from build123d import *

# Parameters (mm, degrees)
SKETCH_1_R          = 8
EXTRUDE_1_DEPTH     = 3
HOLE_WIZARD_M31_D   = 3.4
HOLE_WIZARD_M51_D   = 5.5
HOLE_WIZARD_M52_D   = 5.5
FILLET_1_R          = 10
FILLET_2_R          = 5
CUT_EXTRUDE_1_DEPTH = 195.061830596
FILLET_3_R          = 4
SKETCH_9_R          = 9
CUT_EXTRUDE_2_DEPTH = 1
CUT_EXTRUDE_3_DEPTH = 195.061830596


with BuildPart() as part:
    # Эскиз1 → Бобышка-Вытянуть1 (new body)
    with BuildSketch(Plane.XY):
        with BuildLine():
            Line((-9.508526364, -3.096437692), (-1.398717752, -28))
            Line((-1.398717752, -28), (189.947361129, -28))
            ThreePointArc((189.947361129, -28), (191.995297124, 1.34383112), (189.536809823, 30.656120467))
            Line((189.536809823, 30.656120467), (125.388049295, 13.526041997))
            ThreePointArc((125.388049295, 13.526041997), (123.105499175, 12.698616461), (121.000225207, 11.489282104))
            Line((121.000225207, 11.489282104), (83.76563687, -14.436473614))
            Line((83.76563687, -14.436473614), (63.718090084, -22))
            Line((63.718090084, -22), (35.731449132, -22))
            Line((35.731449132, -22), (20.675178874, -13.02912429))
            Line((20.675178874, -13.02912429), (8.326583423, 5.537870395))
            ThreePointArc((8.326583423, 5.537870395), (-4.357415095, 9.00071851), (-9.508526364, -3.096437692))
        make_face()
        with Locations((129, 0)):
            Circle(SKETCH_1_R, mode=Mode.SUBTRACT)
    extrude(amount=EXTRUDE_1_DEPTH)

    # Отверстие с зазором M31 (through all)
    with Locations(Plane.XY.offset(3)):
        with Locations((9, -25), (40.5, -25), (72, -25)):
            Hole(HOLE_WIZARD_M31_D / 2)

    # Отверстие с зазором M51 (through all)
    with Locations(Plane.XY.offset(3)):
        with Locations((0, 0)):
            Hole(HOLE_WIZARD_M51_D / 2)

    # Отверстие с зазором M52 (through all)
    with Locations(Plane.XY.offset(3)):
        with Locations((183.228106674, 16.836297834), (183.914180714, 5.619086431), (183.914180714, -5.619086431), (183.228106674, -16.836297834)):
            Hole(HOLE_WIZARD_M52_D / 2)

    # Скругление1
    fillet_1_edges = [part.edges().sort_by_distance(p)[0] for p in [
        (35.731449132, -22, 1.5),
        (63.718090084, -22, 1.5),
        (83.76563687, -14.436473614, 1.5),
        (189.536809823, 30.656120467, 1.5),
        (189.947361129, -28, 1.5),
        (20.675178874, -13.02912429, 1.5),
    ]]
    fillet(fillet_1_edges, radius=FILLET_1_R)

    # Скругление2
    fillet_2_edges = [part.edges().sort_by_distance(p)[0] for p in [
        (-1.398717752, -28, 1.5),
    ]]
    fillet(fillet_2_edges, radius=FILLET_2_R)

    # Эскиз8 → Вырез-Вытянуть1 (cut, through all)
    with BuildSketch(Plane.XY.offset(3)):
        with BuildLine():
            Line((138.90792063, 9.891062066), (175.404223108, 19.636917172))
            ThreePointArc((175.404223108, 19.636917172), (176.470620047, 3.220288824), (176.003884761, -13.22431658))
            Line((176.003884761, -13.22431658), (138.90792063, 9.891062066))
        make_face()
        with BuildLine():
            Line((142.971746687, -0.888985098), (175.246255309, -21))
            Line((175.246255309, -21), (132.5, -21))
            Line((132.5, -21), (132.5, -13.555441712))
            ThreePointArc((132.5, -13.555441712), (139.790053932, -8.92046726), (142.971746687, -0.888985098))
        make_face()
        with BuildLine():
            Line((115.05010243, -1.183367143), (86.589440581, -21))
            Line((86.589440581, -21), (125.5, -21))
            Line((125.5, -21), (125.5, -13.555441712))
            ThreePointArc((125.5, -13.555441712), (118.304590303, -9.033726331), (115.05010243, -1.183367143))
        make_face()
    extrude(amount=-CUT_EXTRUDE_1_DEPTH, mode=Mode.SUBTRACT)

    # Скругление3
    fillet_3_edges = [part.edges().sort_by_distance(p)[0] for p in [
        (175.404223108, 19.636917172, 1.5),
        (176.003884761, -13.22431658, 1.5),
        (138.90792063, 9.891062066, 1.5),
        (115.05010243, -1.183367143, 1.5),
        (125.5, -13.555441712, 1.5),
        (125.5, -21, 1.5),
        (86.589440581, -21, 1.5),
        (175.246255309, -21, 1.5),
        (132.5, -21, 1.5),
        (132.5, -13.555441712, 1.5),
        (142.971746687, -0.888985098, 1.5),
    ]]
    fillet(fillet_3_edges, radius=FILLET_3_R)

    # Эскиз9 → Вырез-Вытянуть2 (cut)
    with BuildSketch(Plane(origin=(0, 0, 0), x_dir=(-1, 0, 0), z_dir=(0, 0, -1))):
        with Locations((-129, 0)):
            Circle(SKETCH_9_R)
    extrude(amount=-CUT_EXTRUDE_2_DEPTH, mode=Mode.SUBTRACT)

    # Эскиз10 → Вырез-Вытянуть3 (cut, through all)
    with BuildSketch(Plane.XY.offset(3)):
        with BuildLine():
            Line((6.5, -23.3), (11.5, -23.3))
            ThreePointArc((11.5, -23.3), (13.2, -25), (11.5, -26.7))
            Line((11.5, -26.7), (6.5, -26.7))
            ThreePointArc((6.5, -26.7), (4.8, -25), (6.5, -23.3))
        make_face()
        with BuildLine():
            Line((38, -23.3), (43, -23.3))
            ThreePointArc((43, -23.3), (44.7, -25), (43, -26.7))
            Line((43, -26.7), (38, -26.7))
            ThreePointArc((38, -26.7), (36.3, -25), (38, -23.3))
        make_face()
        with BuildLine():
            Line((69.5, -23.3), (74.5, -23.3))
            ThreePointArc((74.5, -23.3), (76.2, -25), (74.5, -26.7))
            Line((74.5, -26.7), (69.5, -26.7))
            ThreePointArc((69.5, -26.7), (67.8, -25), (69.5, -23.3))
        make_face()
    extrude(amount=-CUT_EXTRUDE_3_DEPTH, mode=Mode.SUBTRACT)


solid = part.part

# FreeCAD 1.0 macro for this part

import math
import FreeCAD as App
import Part
import Sketcher

V = App.Vector


def edges_at(feature, points):
    """Names of the edges that pass closest to the given points."""
    edges = feature.Shape.Edges
    near = lambda p: min(range(len(edges)), key=lambda i: edges[i].distToShape(Part.Vertex(*p))[0])
    return sorted({f"Edge{near(p) + 1}" for p in points})

doc = App.newDocument("Part")
params = doc.addObject("Spreadsheet::Sheet", "Params")
for row, (alias, value) in enumerate([
    ("sketch1_diameter", "16 mm"),
    ("sketch1_radius", "192 mm"),
    ("sketch1_radius2", "14 mm"),
    ("sketch1_radius3", "10 mm"),
    ("pad1_length", "3 mm"),
    ("sketch2_diameter", "3.4 mm"),
    ("hole_diameter", "3.4 mm"),
    ("sketch3_diameter", "5.5 mm"),
    ("hole2_diameter", "5.5 mm"),
    ("sketch4_diameter", "5.5 mm"),
    ("hole3_diameter", "5.5 mm"),
    ("fillet_radius", "10 mm"),
    ("fillet2_radius", "5 mm"),
    ("sketch5_radius", "14 mm"),
    ("sketch5_radius2", "176.5 mm"),
    ("fillet3_radius", "4 mm"),
    ("sketch6_diameter", "18 mm"),
    ("pocket2_length", "1 mm"),
    ("sketch7_radius", "1.7 mm"),
    ("sketch7_width", "5 mm"),
], start=1):
    params.set(f"A{row}", alias)
    params.set(f"B{row}", "=" + value)
    params.setAlias(f"B{row}", alias)

body = doc.addObject("PartDesign::Body", "Body")

# Sketch on XY plane
sketch1 = body.newObject("Sketcher::SketchObject", "Sketch")
sketch1.AttachmentSupport = (doc.getObject("XY_Plane"), [""])
sketch1.MapMode = "FlatFace"
sketch1.addGeometry([
    Part.LineSegment(V(-9.508526, -3.096438, 0), V(-1.398718, -28, 0)),  # 0
    Part.LineSegment(V(-1.398718, -28, 0), V(189.947361, -28, 0)),  # 1
    Part.ArcOfCircle(Part.Circle(V(0, 0, 0), V(0, 0, 1), 192), math.radians(-8.385539), math.radians(9.187585)),  # 2
    Part.LineSegment(V(189.53681, 30.65612, 0), V(125.388049, 13.526042, 0)),  # 3
    Part.ArcOfCircle(Part.Circle(V(129, 0, 0), V(0, 0, 1), 14), math.radians(104.951213), math.radians(124.848781)),  # 4
    Part.LineSegment(V(121.000225, 11.489282, 0), V(83.765637, -14.436474, 0)),  # 5
    Part.LineSegment(V(83.765637, -14.436474, 0), V(63.71809, -22, 0)),  # 6
    Part.LineSegment(V(63.71809, -22, 0), V(35.731449, -22, 0)),  # 7
    Part.LineSegment(V(35.731449, -22, 0), V(20.675179, -13.029124, 0)),  # 8
    Part.LineSegment(V(20.675179, -13.029124, 0), V(8.326583, 5.53787, 0)),  # 9
    Part.ArcOfCircle(Part.Circle(V(0, 0, 0), V(0, 0, 1), 10), math.radians(33.62721), math.radians(198.037764)),  # 10
    Part.Circle(V(129, 0, 0), V(0, 0, 1), 8),  # 11
], False)
sketch1.addConstraint([
    Sketcher.Constraint("Coincident", 0, 2, 1, 1),
    Sketcher.Constraint("Coincident", 1, 2, 2, 1),
    Sketcher.Constraint("Coincident", 2, 2, 3, 1),
    Sketcher.Constraint("Tangent", 3, 2, 4, 1),
    Sketcher.Constraint("Tangent", 4, 2, 5, 1),
    Sketcher.Constraint("Coincident", 5, 2, 6, 1),
    Sketcher.Constraint("Coincident", 6, 2, 7, 1),
    Sketcher.Constraint("Coincident", 7, 2, 8, 1),
    Sketcher.Constraint("Coincident", 8, 2, 9, 1),
    Sketcher.Constraint("Tangent", 9, 2, 10, 1),
    Sketcher.Constraint("Tangent", 10, 2, 0, 1),
    Sketcher.Constraint("Horizontal", 1),
    Sketcher.Constraint("Horizontal", 7),
    Sketcher.Constraint("Coincident", 2, 3, -1, 1),
    Sketcher.Constraint("Coincident", 10, 3, -1, 1),
    Sketcher.Constraint("Coincident", 11, 3, 4, 3),
    Sketcher.Constraint("PointOnObject", 4, 3, -1),
    Sketcher.Constraint("Diameter", 11, 16.0),
    Sketcher.Constraint("Radius", 2, 192.0),
    Sketcher.Constraint("Radius", 4, 14.0),
    Sketcher.Constraint("Radius", 10, 10.0),
    Sketcher.Constraint("DistanceX", -1, 1, 4, 3, 129.0),
    Sketcher.Constraint("DistanceY", 0, 2, -1, 1, 28.0),
    Sketcher.Constraint("DistanceY", 6, 2, -1, 1, 22.0),
    Sketcher.Constraint("DistanceX", 1, 1, 1, 2, 191.346079),
    Sketcher.Constraint("DistanceX", 7, 2, 7, 1, 27.986641),
    Sketcher.Constraint("DistanceX", 0, 2, 9, 2, 9.725301),
    Sketcher.Constraint("Distance", 3, 66.396559),
    Sketcher.Constraint("Distance", 5, 45.37135),
    Sketcher.Constraint("DistanceX", -1, 1, 6, 2, 63.71809),
    Sketcher.Constraint("DistanceX", -1, 1, 8, 2, 20.675179),
    Sketcher.Constraint("DistanceY", 4, 2, 3, 2, 2.03676),
])
sketch1.setExpression("Constraints[17]", "Params.sketch1_diameter")
sketch1.setExpression("Constraints[18]", "Params.sketch1_radius")
sketch1.setExpression("Constraints[19]", "Params.sketch1_radius2")
sketch1.setExpression("Constraints[20]", "Params.sketch1_radius3")
pad1 = body.newObject("PartDesign::Pad", "Pad")
pad1.Profile = sketch1
pad1.setExpression("Length", "Params.pad1_length")

# Sketch on XY plane
sketch2 = body.newObject("Sketcher::SketchObject", "Sketch001")
sketch2.AttachmentSupport = (doc.getObject("XY_Plane"), [""])
sketch2.MapMode = "FlatFace"
sketch2.AttachmentOffset = App.Placement(V(0, 0, 3), App.Rotation())
sketch2.addGeometry([
    Part.Circle(V(9, -25, 0), V(0, 0, 1), 1.7),
    Part.Circle(V(40.5, -25, 0), V(0, 0, 1), 1.7),
    Part.Circle(V(72, -25, 0), V(0, 0, 1), 1.7),
], False)
sketch2.addConstraint([
    Sketcher.Constraint("Equal", 0, 1),
    Sketcher.Constraint("Equal", 1, 2),
    Sketcher.Constraint("Horizontal", 0, 3, 1, 3),
    Sketcher.Constraint("Horizontal", 1, 3, 2, 3),
    Sketcher.Constraint("Diameter", 0, 3.4),
    Sketcher.Constraint("DistanceX", -1, 1, 0, 3, 9.0),
    Sketcher.Constraint("DistanceY", 0, 3, -1, 1, 25.0),
    Sketcher.Constraint("DistanceX", -1, 1, 2, 3, 72.0),
    Sketcher.Constraint("DistanceX", -1, 1, 1, 3, 40.5),
])
sketch2.setExpression("Constraints[4]", "Params.sketch2_diameter")
doc.recompute()
hole = body.newObject("PartDesign::Hole", "Hole")
hole.Profile = sketch2
hole.ThreadType = "None"
hole.setExpression("Diameter", "Params.hole_diameter")
hole.DepthType = "ThroughAll"

# Sketch on XY plane
sketch3 = body.newObject("Sketcher::SketchObject", "Sketch002")
sketch3.AttachmentSupport = (doc.getObject("XY_Plane"), [""])
sketch3.MapMode = "FlatFace"
sketch3.AttachmentOffset = App.Placement(V(0, 0, 3), App.Rotation())
sketch3.addGeometry(Part.Circle(V(0, 0, 0), V(0, 0, 1), 2.75), False)
sketch3.addConstraint([
    Sketcher.Constraint("Coincident", 0, 3, -1, 1),
    Sketcher.Constraint("Diameter", 0, 5.5),
])
sketch3.setExpression("Constraints[1]", "Params.sketch3_diameter")
doc.recompute()
hole2 = body.newObject("PartDesign::Hole", "Hole001")
hole2.Profile = sketch3
hole2.ThreadType = "None"
hole2.setExpression("Diameter", "Params.hole2_diameter")
hole2.DepthType = "ThroughAll"

# Sketch on XY plane
sketch4 = body.newObject("Sketcher::SketchObject", "Sketch003")
sketch4.AttachmentSupport = (doc.getObject("XY_Plane"), [""])
sketch4.MapMode = "FlatFace"
sketch4.AttachmentOffset = App.Placement(V(0, 0, 3), App.Rotation())
sketch4.addGeometry([
    Part.Circle(V(183.228107, 16.836298, 0), V(0, 0, 1), 2.75),
    Part.Circle(V(183.914181, 5.619086, 0), V(0, 0, 1), 2.75),
    Part.Circle(V(183.914181, -5.619086, 0), V(0, 0, 1), 2.75),
    Part.Circle(V(183.228107, -16.836298, 0), V(0, 0, 1), 2.75),
], False)
sketch4.addConstraint([
    Sketcher.Constraint("Equal", 0, 1),
    Sketcher.Constraint("Equal", 1, 2),
    Sketcher.Constraint("Equal", 2, 3),
    Sketcher.Constraint("Symmetric", 1, 3, 2, 3, -1),
    Sketcher.Constraint("Symmetric", 0, 3, 3, 3, -1),
    Sketcher.Constraint("Diameter", 0, 5.5),
    Sketcher.Constraint("DistanceX", -1, 1, 1, 3, 183.914181),
    Sketcher.Constraint("DistanceY", 1, 3, 0, 3, 11.217211),
    Sketcher.Constraint("DistanceX", -1, 1, 0, 3, 183.228107),
    Sketcher.Constraint("DistanceY", -1, 1, 0, 3, 16.836298),
])
sketch4.setExpression("Constraints[5]", "Params.sketch4_diameter")
doc.recompute()
hole3 = body.newObject("PartDesign::Hole", "Hole002")
hole3.Profile = sketch4
hole3.ThreadType = "None"
hole3.setExpression("Diameter", "Params.hole3_diameter")
hole3.DepthType = "ThroughAll"
doc.recompute()

fillet = body.newObject("PartDesign::Fillet", "Fillet")
fillet.Base = (hole3, edges_at(hole3, [
    (35.731, -22, 1.5),
    (63.718, -22, 1.5),
    (83.766, -14.436, 1.5),
    (189.537, 30.656, 1.5),
    (189.947, -28, 1.5),
    (20.675, -13.029, 1.5),
]))
fillet.setExpression("Radius", "Params.fillet_radius")
doc.recompute()

fillet2 = body.newObject("PartDesign::Fillet", "Fillet001")
fillet2.Base = (fillet, edges_at(fillet, [(-1.399, -28, 1.5)]))
fillet2.setExpression("Radius", "Params.fillet2_radius")

# Sketch on XY plane
sketch5 = body.newObject("Sketcher::SketchObject", "Sketch004")
sketch5.AttachmentSupport = (doc.getObject("XY_Plane"), [""])
sketch5.MapMode = "FlatFace"
sketch5.AttachmentOffset = App.Placement(V(0, 0, 3), App.Rotation())
sketch5.addGeometry([
    Part.LineSegment(V(175.404223, 19.636917, 0), V(138.907921, 9.891062, 0)),  # 0
    Part.LineSegment(V(138.907921, 9.891062, 0), V(176.003885, -13.224317, 0)),  # 1
    Part.ArcOfCircle(Part.Circle(V(0, 0, 0), V(0, 0, 1), 176.5), math.radians(-4.296931), math.radians(6.3878)),  # 2
    Part.LineSegment(V(175.246255, -21, 0), V(142.971747, -0.888985, 0)),  # 3
    Part.ArcOfCircle(Part.Circle(V(129, 0, 0), V(0, 0, 1), 14), math.radians(-75.522488), math.radians(-3.64067)),  # 4
    Part.LineSegment(V(132.5, -13.555442, 0), V(132.5, -21, 0)),  # 5
    Part.LineSegment(V(132.5, -21, 0), V(175.246255, -21, 0)),  # 6
    Part.LineSegment(V(115.050102, -1.183367, 0), V(86.589441, -21, 0)),  # 7
    Part.LineSegment(V(86.589441, -21, 0), V(125.5, -21, 0)),  # 8
    Part.LineSegment(V(125.5, -21, 0), V(125.5, -13.555442, 0)),  # 9
    Part.ArcOfCircle(Part.Circle(V(129, 0, 0), V(0, 0, 1), 14), math.radians(-175.151219), math.radians(-104.477512)),  # 10
], False)
sketch5.addConstraint([
    Sketcher.Constraint("Coincident", 0, 2, 1, 1),
    Sketcher.Constraint("Coincident", 1, 2, 2, 1),
    Sketcher.Constraint("Coincident", 2, 2, 0, 1),
    Sketcher.Constraint("Coincident", 3, 2, 4, 2),
    Sketcher.Constraint("Coincident", 4, 1, 5, 1),
    Sketcher.Constraint("Coincident", 5, 2, 6, 1),
    Sketcher.Constraint("Coincident", 6, 2, 3, 1),
    Sketcher.Constraint("Coincident", 7, 2, 8, 1),
    Sketcher.Constraint("Coincident", 8, 2, 9, 1),
    Sketcher.Constraint("Coincident", 9, 2, 10, 2),
    Sketcher.Constraint("Coincident", 10, 1, 7, 1),
    Sketcher.Constraint("Vertical", 5),
    Sketcher.Constraint("Horizontal", 6),
    Sketcher.Constraint("Horizontal", 8),
    Sketcher.Constraint("Vertical", 9),
    Sketcher.Constraint("Coincident", 2, 3, -1, 1),
    Sketcher.Constraint("Coincident", 10, 3, 4, 3),
    Sketcher.Constraint("Equal", 4, 10),
    Sketcher.Constraint("PointOnObject", 4, 3, -1),
    Sketcher.Constraint("Parallel", 1, 3),
    Sketcher.Constraint("Horizontal", 6, 2, 7, 2),
    Sketcher.Constraint("Horizontal", 4, 1, 9, 2),
    Sketcher.Constraint("Radius", 4, 14.0),
    Sketcher.Constraint("Radius", 2, 176.5),
    Sketcher.Constraint("DistanceX", -1, 1, 4, 3, 129.0),
    Sketcher.Constraint("DistanceY", 5, 2, -1, 1, 21.0),
    Sketcher.Constraint("DistanceX", 8, 2, 5, 2, 7.0),
    Sketcher.Constraint("DistanceX", 8, 1, 8, 2, 38.910559),
    Sketcher.Constraint("Distance", 1, 43.708481),
    Sketcher.Constraint("Distance", 3, 38.02758),
    Sketcher.Constraint("DistanceX", 6, 1, 6, 2, 42.746255),
    Sketcher.Constraint("DistanceX", -1, 1, 0, 2, 138.907921),
    Sketcher.Constraint("DistanceX", 2, 2, 1, 2, 0.599662),
    Sketcher.Constraint("Distance", 7, 34.680084),
])
sketch5.setExpression("Constraints[22]", "Params.sketch5_radius")
sketch5.setExpression("Constraints[23]", "Params.sketch5_radius2")
pocket1 = body.newObject("PartDesign::Pocket", "Pocket")
pocket1.Profile = sketch5
pocket1.Type = "ThroughAll"
doc.recompute()

fillet3 = body.newObject("PartDesign::Fillet", "Fillet002")
fillet3.Base = (pocket1, edges_at(pocket1, [
    (175.404, 19.637, 1.5),
    (176.004, -13.224, 1.5),
    (138.908, 9.891, 1.5),
    (115.05, -1.183, 1.5),
    (125.5, -13.555, 1.5),
    (125.5, -21, 1.5),
    (86.589, -21, 1.5),
    (175.246, -21, 1.5),
    (132.5, -21, 1.5),
    (132.5, -13.555, 1.5),
    (142.972, -0.889, 1.5),
]))
fillet3.setExpression("Radius", "Params.fillet3_radius")

# Sketch on XY plane
sketch6 = body.newObject("Sketcher::SketchObject", "Sketch005")
sketch6.AttachmentSupport = (doc.getObject("XY_Plane"), [""])
sketch6.MapMode = "FlatFace"
sketch6.addGeometry(Part.Circle(V(129, 0, 0), V(0, 0, 1), 9), False)
sketch6.addConstraint([
    Sketcher.Constraint("PointOnObject", 0, 3, -1),
    Sketcher.Constraint("Diameter", 0, 18.0),
    Sketcher.Constraint("DistanceX", -1, 1, 0, 3, 129.0),
])
sketch6.setExpression("Constraints[1]", "Params.sketch6_diameter")
pocket2 = body.newObject("PartDesign::Pocket", "Pocket001")
pocket2.Profile = sketch6
pocket2.setExpression("Length", "Params.pocket2_length")
pocket2.Reversed = True

# Sketch on XY plane
sketch7 = body.newObject("Sketcher::SketchObject", "Sketch006")
sketch7.AttachmentSupport = (doc.getObject("XY_Plane"), [""])
sketch7.MapMode = "FlatFace"
sketch7.AttachmentOffset = App.Placement(V(0, 0, 3), App.Rotation())
sketch7.addGeometry([
    Part.LineSegment(V(11.5, -23.3, 0), V(6.5, -23.3, 0)),  # 0
    Part.ArcOfCircle(Part.Circle(V(6.5, -25, 0), V(0, 0, 1), 1.7), math.radians(90), math.radians(270)),  # 1
    Part.LineSegment(V(6.5, -26.7, 0), V(11.5, -26.7, 0)),  # 2
    Part.ArcOfCircle(Part.Circle(V(11.5, -25, 0), V(0, 0, 1), 1.7), math.radians(-90), math.radians(90)),  # 3
    Part.LineSegment(V(43, -23.3, 0), V(38, -23.3, 0)),  # 4
    Part.ArcOfCircle(Part.Circle(V(38, -25, 0), V(0, 0, 1), 1.7), math.radians(90), math.radians(270)),  # 5
    Part.LineSegment(V(38, -26.7, 0), V(43, -26.7, 0)),  # 6
    Part.ArcOfCircle(Part.Circle(V(43, -25, 0), V(0, 0, 1), 1.7), math.radians(-90), math.radians(90)),  # 7
    Part.LineSegment(V(74.5, -23.3, 0), V(69.5, -23.3, 0)),  # 8
    Part.ArcOfCircle(Part.Circle(V(69.5, -25, 0), V(0, 0, 1), 1.7), math.radians(90), math.radians(270)),  # 9
    Part.LineSegment(V(69.5, -26.7, 0), V(74.5, -26.7, 0)),  # 10
    Part.ArcOfCircle(Part.Circle(V(74.5, -25, 0), V(0, 0, 1), 1.7), math.radians(-90), math.radians(90)),  # 11
], False)
sketch7.addConstraint([
    Sketcher.Constraint("Tangent", 0, 2, 1, 1),
    Sketcher.Constraint("Tangent", 1, 2, 2, 1),
    Sketcher.Constraint("Tangent", 2, 2, 3, 1),
    Sketcher.Constraint("Tangent", 3, 2, 0, 1),
    Sketcher.Constraint("Tangent", 4, 2, 5, 1),
    Sketcher.Constraint("Tangent", 5, 2, 6, 1),
    Sketcher.Constraint("Tangent", 6, 2, 7, 1),
    Sketcher.Constraint("Tangent", 7, 2, 4, 1),
    Sketcher.Constraint("Tangent", 8, 2, 9, 1),
    Sketcher.Constraint("Tangent", 9, 2, 10, 1),
    Sketcher.Constraint("Tangent", 10, 2, 11, 1),
    Sketcher.Constraint("Tangent", 11, 2, 8, 1),
    Sketcher.Constraint("Horizontal", 0),
    Sketcher.Constraint("Horizontal", 2),
    Sketcher.Constraint("Horizontal", 4),
    Sketcher.Constraint("Horizontal", 6),
    Sketcher.Constraint("Horizontal", 8),
    Sketcher.Constraint("Horizontal", 10),
    Sketcher.Constraint("Equal", 3, 5),
    Sketcher.Constraint("Equal", 7, 9),
    Sketcher.Constraint("Horizontal", 3, 3, 5, 3),
    Sketcher.Constraint("Horizontal", 7, 3, 9, 3),
    Sketcher.Constraint("Equal", 2, 4),
    Sketcher.Constraint("Equal", 6, 8),
    Sketcher.Constraint("Radius", 1, 1.7),
    Sketcher.Constraint("DistanceX", 0, 2, 0, 1, 5.0),
    Sketcher.Constraint("DistanceY", 1, 3, -1, 1, 25.0),
    Sketcher.Constraint("DistanceX", -1, 1, 5, 3, 38.0),
    Sketcher.Constraint("DistanceX", 3, 3, 9, 3, 58.0),
    Sketcher.Constraint("DistanceX", -1, 1, 1, 3, 6.5),
])
sketch7.setExpression("Constraints[24]", "Params.sketch7_radius")
sketch7.setExpression("Constraints[25]", "Params.sketch7_width")
pocket3 = body.newObject("PartDesign::Pocket", "Pocket002")
pocket3.Profile = sketch7
pocket3.Type = "ThroughAll"

doc.recompute()
